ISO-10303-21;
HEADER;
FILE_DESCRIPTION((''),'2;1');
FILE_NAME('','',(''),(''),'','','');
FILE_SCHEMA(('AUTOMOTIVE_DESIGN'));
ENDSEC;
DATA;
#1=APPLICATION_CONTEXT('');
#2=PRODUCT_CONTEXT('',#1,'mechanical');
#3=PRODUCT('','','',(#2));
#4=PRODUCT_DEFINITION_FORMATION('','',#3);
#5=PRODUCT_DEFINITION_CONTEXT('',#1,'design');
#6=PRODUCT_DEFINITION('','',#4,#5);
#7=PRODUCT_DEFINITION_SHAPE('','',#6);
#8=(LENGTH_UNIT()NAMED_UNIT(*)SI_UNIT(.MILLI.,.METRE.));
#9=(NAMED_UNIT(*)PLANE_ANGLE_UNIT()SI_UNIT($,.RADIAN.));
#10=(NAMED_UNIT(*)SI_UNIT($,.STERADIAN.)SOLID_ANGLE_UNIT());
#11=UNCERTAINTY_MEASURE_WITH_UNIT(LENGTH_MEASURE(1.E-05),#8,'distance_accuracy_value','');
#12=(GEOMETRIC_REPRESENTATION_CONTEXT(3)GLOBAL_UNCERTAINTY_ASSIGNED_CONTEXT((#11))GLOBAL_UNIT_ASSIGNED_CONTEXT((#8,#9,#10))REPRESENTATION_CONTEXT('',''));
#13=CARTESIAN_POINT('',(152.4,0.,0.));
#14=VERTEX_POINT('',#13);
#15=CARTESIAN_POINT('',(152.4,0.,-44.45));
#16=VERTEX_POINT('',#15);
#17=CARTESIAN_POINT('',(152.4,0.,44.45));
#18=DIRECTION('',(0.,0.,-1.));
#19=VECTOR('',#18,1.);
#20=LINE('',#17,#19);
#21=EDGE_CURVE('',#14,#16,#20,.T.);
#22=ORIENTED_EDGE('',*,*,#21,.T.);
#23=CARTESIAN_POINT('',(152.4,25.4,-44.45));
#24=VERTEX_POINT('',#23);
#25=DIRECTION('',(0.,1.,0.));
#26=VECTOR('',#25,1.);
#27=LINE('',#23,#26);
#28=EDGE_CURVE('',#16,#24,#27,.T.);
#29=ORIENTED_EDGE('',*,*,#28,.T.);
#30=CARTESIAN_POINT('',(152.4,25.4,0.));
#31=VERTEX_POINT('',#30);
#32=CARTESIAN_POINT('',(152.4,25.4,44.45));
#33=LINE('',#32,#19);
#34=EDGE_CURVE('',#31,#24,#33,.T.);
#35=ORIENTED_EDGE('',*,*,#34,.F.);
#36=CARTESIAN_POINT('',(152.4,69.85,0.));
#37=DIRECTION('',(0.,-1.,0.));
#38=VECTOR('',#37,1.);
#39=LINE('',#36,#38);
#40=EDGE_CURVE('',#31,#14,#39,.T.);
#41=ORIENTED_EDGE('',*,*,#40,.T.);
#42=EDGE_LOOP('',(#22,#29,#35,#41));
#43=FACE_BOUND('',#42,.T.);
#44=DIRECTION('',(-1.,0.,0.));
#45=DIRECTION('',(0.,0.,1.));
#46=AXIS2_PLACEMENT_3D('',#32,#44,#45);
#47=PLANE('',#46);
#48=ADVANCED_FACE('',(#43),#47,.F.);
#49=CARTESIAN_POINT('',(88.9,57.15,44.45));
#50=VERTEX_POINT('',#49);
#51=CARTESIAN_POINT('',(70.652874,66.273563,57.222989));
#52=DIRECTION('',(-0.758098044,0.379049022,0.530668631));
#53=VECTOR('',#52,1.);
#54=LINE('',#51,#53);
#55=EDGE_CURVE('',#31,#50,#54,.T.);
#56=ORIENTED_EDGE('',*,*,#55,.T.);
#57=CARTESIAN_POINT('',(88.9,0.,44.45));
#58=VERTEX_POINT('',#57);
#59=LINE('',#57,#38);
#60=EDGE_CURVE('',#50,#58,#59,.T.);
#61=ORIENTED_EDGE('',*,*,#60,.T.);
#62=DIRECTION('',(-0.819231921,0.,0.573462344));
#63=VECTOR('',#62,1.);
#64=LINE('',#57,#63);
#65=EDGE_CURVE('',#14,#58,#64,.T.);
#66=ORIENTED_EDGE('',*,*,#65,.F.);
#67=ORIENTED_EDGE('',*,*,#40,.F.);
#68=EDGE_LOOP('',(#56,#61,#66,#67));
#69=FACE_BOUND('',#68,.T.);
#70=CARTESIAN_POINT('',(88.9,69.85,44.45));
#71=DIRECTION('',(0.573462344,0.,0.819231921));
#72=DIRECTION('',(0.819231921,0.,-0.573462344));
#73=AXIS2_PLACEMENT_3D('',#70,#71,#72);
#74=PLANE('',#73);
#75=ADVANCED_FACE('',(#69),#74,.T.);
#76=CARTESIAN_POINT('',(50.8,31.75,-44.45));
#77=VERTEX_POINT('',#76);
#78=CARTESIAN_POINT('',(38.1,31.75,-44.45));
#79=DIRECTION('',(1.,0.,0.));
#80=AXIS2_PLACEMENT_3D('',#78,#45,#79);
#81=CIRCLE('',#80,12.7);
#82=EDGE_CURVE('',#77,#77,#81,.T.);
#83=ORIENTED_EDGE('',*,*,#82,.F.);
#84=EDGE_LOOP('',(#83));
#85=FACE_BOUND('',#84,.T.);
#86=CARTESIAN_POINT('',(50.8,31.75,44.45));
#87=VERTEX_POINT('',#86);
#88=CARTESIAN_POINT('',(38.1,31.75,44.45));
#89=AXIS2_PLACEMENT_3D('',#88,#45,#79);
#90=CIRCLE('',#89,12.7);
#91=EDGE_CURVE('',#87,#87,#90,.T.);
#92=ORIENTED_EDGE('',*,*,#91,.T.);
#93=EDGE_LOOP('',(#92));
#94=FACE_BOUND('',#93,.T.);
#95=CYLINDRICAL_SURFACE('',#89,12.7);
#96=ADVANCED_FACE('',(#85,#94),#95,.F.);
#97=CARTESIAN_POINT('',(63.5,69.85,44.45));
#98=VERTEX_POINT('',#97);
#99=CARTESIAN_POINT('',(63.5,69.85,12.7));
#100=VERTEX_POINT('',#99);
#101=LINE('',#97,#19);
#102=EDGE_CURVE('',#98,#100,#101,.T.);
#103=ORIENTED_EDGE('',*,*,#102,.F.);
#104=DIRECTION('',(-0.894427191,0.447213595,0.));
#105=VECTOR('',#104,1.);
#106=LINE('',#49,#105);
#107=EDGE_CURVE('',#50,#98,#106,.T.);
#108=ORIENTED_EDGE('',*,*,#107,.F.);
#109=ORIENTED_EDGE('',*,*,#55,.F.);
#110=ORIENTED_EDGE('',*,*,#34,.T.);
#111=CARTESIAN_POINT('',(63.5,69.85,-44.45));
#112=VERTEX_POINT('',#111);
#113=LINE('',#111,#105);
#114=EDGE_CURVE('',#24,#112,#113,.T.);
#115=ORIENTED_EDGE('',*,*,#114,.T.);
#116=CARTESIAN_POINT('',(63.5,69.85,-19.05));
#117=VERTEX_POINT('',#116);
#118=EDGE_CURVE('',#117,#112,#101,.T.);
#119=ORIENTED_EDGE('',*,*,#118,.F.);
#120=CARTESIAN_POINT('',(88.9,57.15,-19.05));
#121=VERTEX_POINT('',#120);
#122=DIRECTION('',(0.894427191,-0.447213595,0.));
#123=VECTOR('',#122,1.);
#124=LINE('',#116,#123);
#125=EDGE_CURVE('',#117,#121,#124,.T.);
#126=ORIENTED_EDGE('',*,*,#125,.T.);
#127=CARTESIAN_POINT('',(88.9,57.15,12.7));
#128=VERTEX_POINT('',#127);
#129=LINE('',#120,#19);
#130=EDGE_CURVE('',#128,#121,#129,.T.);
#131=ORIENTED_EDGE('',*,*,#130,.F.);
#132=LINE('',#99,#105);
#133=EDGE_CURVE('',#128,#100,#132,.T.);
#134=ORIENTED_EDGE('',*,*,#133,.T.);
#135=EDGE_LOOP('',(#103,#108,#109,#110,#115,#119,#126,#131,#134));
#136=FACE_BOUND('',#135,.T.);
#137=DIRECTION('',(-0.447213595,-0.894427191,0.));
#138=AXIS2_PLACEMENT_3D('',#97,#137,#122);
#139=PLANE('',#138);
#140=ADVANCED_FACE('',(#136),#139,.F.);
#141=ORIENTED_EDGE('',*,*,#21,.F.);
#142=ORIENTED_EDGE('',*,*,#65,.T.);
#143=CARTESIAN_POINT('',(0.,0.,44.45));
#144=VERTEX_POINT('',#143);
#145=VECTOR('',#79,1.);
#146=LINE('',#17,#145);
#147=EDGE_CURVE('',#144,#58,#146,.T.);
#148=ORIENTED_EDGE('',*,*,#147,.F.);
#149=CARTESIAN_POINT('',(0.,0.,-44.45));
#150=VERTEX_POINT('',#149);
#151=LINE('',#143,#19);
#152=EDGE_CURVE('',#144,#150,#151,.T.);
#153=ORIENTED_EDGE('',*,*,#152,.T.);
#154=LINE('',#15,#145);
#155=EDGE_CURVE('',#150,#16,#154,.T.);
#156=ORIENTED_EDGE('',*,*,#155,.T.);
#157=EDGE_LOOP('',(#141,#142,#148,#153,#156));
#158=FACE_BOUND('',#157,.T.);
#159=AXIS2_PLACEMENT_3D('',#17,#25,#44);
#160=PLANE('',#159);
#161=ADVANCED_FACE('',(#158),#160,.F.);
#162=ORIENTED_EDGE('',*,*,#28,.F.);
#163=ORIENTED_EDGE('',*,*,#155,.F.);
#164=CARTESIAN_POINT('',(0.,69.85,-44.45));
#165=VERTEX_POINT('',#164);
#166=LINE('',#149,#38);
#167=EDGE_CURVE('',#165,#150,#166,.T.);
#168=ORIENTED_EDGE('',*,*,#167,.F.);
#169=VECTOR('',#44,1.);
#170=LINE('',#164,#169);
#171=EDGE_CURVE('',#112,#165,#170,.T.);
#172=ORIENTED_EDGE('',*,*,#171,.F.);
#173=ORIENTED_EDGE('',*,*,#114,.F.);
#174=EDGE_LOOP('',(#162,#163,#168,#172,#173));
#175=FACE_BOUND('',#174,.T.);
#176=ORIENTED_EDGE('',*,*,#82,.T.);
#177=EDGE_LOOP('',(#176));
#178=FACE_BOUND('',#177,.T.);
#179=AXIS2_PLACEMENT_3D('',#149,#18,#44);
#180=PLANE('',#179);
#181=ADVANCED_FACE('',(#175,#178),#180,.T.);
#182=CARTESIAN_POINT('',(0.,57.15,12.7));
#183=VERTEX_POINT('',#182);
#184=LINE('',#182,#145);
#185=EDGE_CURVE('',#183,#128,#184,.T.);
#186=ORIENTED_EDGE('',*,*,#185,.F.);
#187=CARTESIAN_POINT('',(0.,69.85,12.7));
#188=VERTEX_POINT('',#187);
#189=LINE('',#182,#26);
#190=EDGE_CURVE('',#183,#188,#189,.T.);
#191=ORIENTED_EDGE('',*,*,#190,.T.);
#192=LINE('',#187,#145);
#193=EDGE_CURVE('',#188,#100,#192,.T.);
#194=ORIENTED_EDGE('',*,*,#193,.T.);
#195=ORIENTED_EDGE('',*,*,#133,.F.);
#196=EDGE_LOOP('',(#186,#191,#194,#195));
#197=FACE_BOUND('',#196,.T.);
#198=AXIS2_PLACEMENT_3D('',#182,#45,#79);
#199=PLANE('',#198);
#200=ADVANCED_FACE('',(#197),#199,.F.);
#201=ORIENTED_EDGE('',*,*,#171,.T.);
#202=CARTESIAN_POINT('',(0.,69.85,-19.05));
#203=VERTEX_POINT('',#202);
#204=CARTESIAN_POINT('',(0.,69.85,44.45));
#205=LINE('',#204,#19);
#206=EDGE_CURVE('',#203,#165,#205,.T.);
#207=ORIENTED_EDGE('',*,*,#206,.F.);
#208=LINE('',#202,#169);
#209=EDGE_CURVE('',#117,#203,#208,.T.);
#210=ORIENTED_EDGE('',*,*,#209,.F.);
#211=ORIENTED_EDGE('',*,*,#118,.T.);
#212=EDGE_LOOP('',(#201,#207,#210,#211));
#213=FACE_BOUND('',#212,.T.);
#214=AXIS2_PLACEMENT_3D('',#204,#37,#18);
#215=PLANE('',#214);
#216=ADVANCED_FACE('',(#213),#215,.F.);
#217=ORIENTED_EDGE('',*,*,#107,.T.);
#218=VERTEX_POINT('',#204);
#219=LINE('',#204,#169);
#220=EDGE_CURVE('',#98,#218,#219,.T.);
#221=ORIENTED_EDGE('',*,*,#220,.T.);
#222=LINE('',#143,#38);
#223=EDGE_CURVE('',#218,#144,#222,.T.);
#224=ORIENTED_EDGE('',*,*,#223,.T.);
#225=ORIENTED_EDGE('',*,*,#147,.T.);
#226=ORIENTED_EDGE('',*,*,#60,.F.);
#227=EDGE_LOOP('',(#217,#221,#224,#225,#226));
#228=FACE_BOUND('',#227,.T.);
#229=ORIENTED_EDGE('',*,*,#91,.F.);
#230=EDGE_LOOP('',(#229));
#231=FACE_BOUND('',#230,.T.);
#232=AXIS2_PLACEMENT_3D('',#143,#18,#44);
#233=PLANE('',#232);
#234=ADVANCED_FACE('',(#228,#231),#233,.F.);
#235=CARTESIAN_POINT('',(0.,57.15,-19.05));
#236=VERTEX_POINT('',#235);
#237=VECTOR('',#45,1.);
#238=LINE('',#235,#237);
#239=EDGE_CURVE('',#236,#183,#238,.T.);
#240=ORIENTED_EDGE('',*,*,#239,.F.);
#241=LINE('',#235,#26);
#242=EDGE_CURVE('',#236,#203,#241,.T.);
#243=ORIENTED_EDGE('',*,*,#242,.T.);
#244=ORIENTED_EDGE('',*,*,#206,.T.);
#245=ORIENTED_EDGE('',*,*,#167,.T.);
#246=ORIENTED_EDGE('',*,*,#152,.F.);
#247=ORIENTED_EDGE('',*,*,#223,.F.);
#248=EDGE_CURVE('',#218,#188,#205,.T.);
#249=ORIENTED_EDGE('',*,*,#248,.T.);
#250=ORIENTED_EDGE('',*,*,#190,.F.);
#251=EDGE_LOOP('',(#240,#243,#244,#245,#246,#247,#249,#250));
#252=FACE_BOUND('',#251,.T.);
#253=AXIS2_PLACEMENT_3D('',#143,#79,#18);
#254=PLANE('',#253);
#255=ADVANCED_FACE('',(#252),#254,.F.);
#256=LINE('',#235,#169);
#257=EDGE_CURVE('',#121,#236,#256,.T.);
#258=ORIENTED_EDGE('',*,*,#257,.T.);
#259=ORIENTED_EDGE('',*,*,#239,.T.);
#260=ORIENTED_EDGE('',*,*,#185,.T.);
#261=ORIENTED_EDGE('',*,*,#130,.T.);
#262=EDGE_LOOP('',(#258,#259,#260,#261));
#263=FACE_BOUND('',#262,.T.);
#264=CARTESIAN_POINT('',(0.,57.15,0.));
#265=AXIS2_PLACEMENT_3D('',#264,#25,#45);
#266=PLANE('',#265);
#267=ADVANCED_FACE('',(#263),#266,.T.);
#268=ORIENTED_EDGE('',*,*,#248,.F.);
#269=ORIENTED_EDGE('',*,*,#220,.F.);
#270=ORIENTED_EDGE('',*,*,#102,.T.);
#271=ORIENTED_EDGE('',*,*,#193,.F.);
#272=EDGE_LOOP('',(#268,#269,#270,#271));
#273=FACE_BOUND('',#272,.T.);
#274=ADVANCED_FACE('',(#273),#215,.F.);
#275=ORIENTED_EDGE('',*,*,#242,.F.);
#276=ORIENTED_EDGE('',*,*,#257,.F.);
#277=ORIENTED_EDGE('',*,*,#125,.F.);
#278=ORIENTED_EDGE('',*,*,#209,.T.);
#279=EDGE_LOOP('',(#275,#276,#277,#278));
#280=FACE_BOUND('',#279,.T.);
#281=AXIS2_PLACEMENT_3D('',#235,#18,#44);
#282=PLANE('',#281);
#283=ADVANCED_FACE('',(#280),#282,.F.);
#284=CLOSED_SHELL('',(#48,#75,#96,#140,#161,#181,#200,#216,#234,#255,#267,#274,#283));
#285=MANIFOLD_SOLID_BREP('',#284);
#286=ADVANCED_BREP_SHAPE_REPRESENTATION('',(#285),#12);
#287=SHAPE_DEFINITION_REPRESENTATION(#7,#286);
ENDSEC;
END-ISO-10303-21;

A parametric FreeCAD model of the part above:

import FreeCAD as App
import Part
import Sketcher

V = App.Vector
Q = App.Units.Quantity


def add_polygon(sketch, points):
    """Adds a closed chain of lines whose ends are joined by coincident constraints."""
    first, n = sketch.GeometryCount, len(points)
    for a, b in zip(points, points[1:] + points[:1]):
        sketch.addGeometry(Part.LineSegment(App.Vector(*a, 0), App.Vector(*b, 0)), False)
    for i in range(n):
        sketch.addConstraint(Sketcher.Constraint("Coincident", first + i, 2, first + (i + 1) % n, 1))

doc = App.newDocument("Part")
params = doc.addObject("Spreadsheet::Sheet", "Params")
for row, (alias, value) in enumerate([
    ("sketch1_width", "6 in"),
    ("sketch1_height", "1 in"),
    ("sketch1_width2", "2.5 in"),
    ("sketch1_height2", "2.75 in"),
    ("pad1_length", "3.5 in"),
    ("sketch2_width", "3.5 in"),
    ("sketch2_height", "1.25 in"),
    ("pocket1_length", "0.5 in"),
    ("sketch3_width", "2.5 in"),
    ("sketch3_height", "1.75 in"),
    ("sketch4_diameter", "1 in"),
    ("hole_diameter", "1 in"),
], start=1):
    params.set(f"A{row}", alias)
    params.set(f"B{row}", "=" + value)
    params.setAlias(f"B{row}", alias)

body = doc.addObject("PartDesign::Body", "Body")

sketch1 = body.newObject("Sketcher::SketchObject", "Sketch")
sketch1.AttachmentSupport = (doc.getObject("XY_Plane"), [""])
sketch1.MapMode = "FlatFace"
add_polygon(sketch1, [(0, 70), (0, 0), (152, 0), (152, 25), (64, 70)])
sketch1.addConstraint([
    Sketcher.Constraint("Vertical", 0),
    Sketcher.Constraint("Horizontal", 1),
    Sketcher.Constraint("Vertical", 2),
    Sketcher.Constraint("Horizontal", 4),
    Sketcher.Constraint("Coincident", 0, 2, -1, 1),
    Sketcher.Constraint("DistanceX", 1, 1, 1, 2, Q("6 in")),
    Sketcher.Constraint("DistanceY", 2, 1, 2, 2, Q("1 in")),
    Sketcher.Constraint("DistanceX", 4, 2, 4, 1, Q("2.5 in")),
    Sketcher.Constraint("DistanceY", 0, 2, 0, 1, Q("2.75 in")),
])
sketch1.setExpression("Constraints[10]", "Params.sketch1_width")
sketch1.setExpression("Constraints[11]", "Params.sketch1_height")
sketch1.setExpression("Constraints[12]", "Params.sketch1_width2")
sketch1.setExpression("Constraints[13]", "Params.sketch1_height2")
pad1 = body.newObject("PartDesign::Pad", "Pad")
pad1.Profile = sketch1
pad1.setExpression("Length", "Params.pad1_length")
pad1.Midplane = True

sketch2 = body.newObject("Sketcher::SketchObject", "Sketch001")
sketch2.AttachmentSupport = (doc.getObject("XZ_Plane"), [""])
sketch2.MapMode = "FlatFace"
sketch2.AttachmentOffset = App.Placement(V(0, 0, -2.75 * 25.4), App.Rotation())
add_polygon(sketch2, [(0, -19), (0, 13), (89, 13), (89, -19)])
sketch2.addConstraint([
    Sketcher.Constraint("Vertical", 0),
    Sketcher.Constraint("Horizontal", 1),
    Sketcher.Constraint("Vertical", 2),
    Sketcher.Constraint("Horizontal", 3),
    Sketcher.Constraint("PointOnObject", 0, 2, -2),
    Sketcher.Constraint("DistanceX", 1, 1, 1, 2, Q("3.5 in")),
    Sketcher.Constraint("DistanceY", 0, 1, 0, 2, Q("1.25 in")),
    Sketcher.Constraint("DistanceY", -1, 1, 0, 2, Q("0.5 in")),
])
sketch2.setExpression("Constraints[9]", "Params.sketch2_width")
sketch2.setExpression("Constraints[10]", "Params.sketch2_height")
pocket1 = body.newObject("PartDesign::Pocket", "Pocket")
pocket1.Profile = sketch2
pocket1.setExpression("Length", "Params.pocket1_length")
pocket1.Reversed = True

sketch3 = body.newObject("Sketcher::SketchObject", "Sketch002")
sketch3.AttachmentSupport = (doc.getObject("XZ_Plane"), [""])
sketch3.MapMode = "FlatFace"
add_polygon(sketch3, [(152, 0), (89, 44), (152, 44)])
sketch3.addConstraint([
    Sketcher.Constraint("Horizontal", 1),
    Sketcher.Constraint("Vertical", 2),
    Sketcher.Constraint("PointOnObject", 2, 2, -1),
    Sketcher.Constraint("DistanceX", 1, 1, 1, 2, Q("2.5 in")),
    Sketcher.Constraint("DistanceX", -1, 1, 1, 2, Q("6 in")),
    Sketcher.Constraint("DistanceY", 2, 2, 2, 1, Q("1.75 in")),
])
sketch3.setExpression("Constraints[6]", "Params.sketch3_width")
sketch3.setExpression("Constraints[8]", "Params.sketch3_height")
pocket2 = body.newObject("PartDesign::Pocket", "Pocket001")
pocket2.Profile = sketch3
pocket2.Type = "ThroughAll"

sketch4 = body.newObject("Sketcher::SketchObject", "Sketch003")
sketch4.AttachmentSupport = (doc.getObject("XY_Plane"), [""])
sketch4.MapMode = "FlatFace"
sketch4.AttachmentOffset = App.Placement(V(0, 0, 1.75 * 25.4), App.Rotation())
sketch4.addGeometry(Part.Circle(V(38, 32, 0), V(0, 0, 1), 13), False)
sketch4.addConstraint([
    Sketcher.Constraint("Diameter", 0, Q("1 in")),
    Sketcher.Constraint("DistanceX", -1, 1, 0, 3, Q("1.5 in")),
    Sketcher.Constraint("DistanceY", -1, 1, 0, 3, Q("1.25 in")),
])
sketch4.setExpression("Constraints[0]", "Params.sketch4_diameter")
doc.recompute()
hole = body.newObject("PartDesign::Hole", "Hole")
hole.Profile = sketch4
hole.ThreadType = "None"
hole.setExpression("Diameter", "Params.hole_diameter")
hole.DepthType = "ThroughAll"

doc.recompute()
